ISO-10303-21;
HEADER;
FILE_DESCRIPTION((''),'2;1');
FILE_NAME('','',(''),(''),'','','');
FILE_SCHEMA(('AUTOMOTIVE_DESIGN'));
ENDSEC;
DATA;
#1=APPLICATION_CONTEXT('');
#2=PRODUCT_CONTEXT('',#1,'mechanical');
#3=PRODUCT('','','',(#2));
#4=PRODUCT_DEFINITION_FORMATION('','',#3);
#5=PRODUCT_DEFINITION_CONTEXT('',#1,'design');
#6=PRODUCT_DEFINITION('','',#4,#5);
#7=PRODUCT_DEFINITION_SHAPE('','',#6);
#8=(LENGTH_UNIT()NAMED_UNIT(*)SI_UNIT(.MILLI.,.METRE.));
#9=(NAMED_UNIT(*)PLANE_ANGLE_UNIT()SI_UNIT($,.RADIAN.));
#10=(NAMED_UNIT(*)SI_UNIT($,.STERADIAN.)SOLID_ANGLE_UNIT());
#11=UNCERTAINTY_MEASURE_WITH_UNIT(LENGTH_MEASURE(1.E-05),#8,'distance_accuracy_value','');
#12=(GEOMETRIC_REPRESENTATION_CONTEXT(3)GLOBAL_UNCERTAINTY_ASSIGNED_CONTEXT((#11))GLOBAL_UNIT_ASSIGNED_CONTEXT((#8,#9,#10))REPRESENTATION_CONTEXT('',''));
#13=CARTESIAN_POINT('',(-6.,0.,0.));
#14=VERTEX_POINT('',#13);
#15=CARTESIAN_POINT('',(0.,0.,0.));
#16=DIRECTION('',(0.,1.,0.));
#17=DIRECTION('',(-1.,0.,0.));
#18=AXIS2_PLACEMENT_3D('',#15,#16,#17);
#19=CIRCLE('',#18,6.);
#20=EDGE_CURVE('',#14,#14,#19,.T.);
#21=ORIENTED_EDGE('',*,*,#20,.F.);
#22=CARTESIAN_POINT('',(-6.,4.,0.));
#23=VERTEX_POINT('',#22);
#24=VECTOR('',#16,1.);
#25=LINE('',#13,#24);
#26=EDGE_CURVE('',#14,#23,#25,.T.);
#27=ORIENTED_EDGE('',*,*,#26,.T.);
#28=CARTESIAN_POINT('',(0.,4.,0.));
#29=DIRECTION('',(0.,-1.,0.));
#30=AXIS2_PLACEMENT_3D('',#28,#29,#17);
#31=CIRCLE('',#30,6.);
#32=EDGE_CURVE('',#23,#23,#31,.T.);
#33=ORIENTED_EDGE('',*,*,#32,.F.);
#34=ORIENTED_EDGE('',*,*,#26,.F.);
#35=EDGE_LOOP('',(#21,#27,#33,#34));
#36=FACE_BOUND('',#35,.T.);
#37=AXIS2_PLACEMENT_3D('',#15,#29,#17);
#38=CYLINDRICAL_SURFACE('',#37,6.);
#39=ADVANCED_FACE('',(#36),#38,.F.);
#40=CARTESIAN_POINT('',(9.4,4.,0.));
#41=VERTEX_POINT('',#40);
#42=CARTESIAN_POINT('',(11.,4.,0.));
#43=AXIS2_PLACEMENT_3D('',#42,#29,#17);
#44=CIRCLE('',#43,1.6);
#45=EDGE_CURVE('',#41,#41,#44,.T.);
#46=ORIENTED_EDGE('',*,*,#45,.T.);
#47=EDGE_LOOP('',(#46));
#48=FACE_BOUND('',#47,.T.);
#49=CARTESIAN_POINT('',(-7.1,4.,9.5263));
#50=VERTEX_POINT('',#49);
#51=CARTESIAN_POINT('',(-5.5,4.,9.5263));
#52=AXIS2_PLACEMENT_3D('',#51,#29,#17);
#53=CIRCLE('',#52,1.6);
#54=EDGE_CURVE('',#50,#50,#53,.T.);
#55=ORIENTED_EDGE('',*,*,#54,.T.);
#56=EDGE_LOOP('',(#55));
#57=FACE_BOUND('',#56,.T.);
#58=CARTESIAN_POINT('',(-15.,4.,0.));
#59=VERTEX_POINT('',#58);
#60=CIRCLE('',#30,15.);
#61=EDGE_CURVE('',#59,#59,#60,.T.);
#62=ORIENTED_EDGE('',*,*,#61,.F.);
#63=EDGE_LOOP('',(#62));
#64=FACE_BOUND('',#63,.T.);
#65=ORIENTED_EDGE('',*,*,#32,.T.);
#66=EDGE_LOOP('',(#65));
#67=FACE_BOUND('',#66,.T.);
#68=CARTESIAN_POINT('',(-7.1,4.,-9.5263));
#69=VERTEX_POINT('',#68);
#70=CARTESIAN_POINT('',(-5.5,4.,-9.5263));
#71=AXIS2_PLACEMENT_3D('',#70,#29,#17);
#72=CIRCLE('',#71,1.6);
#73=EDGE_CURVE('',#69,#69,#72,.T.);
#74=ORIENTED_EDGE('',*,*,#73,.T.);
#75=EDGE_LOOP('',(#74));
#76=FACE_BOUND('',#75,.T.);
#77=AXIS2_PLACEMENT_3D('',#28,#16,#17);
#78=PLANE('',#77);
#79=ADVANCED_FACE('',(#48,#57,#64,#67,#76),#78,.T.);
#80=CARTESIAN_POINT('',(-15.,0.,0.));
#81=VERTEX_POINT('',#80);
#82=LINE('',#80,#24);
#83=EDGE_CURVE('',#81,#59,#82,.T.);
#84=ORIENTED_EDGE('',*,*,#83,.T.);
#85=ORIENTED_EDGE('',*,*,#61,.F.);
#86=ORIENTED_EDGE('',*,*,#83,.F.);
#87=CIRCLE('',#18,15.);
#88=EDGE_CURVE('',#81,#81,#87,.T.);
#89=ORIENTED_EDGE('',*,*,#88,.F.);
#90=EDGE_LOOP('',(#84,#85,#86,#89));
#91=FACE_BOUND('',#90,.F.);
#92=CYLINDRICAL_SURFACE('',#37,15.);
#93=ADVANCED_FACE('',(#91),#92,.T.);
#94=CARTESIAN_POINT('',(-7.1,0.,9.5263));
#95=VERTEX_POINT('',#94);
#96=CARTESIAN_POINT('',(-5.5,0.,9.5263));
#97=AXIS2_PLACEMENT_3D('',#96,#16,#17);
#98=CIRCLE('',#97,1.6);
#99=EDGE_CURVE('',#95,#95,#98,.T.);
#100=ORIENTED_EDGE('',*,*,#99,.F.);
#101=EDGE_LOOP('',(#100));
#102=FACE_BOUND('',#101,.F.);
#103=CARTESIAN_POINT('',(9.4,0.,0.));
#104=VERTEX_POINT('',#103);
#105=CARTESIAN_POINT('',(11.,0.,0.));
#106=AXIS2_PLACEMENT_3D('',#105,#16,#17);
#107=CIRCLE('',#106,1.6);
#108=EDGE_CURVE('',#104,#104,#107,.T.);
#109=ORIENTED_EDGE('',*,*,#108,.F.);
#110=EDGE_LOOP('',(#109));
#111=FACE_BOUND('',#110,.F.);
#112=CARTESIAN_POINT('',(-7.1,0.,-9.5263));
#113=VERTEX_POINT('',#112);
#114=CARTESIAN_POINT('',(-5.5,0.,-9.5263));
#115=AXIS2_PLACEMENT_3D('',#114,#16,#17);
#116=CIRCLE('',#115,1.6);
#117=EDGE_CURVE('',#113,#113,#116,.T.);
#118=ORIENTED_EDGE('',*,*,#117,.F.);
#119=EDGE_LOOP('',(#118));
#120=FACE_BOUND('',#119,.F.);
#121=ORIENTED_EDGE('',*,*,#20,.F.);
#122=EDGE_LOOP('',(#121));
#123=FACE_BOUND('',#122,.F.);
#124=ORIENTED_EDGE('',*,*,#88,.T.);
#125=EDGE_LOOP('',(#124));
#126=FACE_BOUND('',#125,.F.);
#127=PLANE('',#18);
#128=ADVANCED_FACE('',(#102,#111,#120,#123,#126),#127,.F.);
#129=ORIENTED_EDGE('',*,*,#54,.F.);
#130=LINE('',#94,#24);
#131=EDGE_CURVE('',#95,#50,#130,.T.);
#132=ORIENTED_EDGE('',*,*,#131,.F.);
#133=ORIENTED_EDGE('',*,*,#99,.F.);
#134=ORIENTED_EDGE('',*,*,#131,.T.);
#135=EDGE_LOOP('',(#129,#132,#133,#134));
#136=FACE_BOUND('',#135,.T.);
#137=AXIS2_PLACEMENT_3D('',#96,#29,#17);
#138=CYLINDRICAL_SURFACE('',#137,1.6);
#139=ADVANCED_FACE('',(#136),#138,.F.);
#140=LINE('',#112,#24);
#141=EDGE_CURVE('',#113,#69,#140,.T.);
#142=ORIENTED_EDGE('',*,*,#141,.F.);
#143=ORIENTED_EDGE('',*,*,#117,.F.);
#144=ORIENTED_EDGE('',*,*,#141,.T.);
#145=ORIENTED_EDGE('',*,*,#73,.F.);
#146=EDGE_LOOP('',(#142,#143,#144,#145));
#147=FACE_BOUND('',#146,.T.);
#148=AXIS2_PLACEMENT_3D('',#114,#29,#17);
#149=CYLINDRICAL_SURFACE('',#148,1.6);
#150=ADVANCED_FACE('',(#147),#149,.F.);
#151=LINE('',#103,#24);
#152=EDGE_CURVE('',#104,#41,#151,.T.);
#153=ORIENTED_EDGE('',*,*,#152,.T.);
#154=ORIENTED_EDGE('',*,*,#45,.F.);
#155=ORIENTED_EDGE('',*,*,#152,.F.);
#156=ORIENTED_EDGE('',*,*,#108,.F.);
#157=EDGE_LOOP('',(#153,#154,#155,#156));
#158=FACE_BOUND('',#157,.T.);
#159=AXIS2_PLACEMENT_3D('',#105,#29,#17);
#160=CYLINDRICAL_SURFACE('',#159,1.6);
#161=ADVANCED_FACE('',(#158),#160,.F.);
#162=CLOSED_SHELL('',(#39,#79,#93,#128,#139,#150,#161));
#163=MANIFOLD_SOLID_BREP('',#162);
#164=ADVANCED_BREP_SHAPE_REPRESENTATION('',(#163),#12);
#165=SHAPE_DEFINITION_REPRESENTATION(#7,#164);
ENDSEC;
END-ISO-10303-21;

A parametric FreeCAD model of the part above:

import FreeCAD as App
import Part
import Sketcher
from FreeCAD import Vector
Q = App.Units.Quantity

doc = App.newDocument("Part")
body = doc.addObject("PartDesign::Body", "Body")

sketch1 = body.newObject("Sketcher::SketchObject", "Sketch")
sketch1.AttachmentSupport = (doc.getObject("XZ_Plane"), [""])
sketch1.MapMode = "FlatFace"
sketch1.addGeometry(Part.Circle(Vector(0, 0, 0), Vector(0, 0, 1), 15), False)
sketch1.addGeometry(Part.Circle(Vector(-5.5, -9.5, 0), Vector(0, 0, 1), 1.6), False)
sketch1.addGeometry(Part.Circle(Vector(-5.5, 9.5, 0), Vector(0, 0, 1), 1.6), False)
sketch1.addGeometry(Part.Circle(Vector(11, 0, 0), Vector(0, 0, 1), 1.6), False)
sketch1.addGeometry(Part.Circle(Vector(0, 0, 0), Vector(0, 0, 1), 6), False)
sketch1.addConstraint(Sketcher.Constraint("Coincident", 0, 3, -1, 1))
sketch1.addConstraint(Sketcher.Constraint("Coincident", 4, 3, -1, 1))
sketch1.addConstraint(Sketcher.Constraint("Equal", 1, 2))
sketch1.addConstraint(Sketcher.Constraint("Equal", 2, 3))
sketch1.addConstraint(Sketcher.Constraint("Symmetric", 1, 3, 2, 3, -1))
sketch1.addConstraint(Sketcher.Constraint("PointOnObject", 3, 3, -1))
sketch1.addConstraint(Sketcher.Constraint("Diameter", 0, Q("30 mm")))
sketch1.addConstraint(Sketcher.Constraint("Diameter", 4, Q("12 mm")))
sketch1.addConstraint(Sketcher.Constraint("Diameter", 1, Q("3.2 mm")))
sketch1.addConstraint(Sketcher.Constraint("DistanceX", -1, 1, 3, 3, Q("11 mm")))
sketch1.addConstraint(Sketcher.Constraint("DistanceX", 1, 3, -1, 1, Q("5.5 mm")))
sketch1.addConstraint(Sketcher.Constraint("DistanceY", 1, 3, -1, 1, Q("9.5263 mm")))
pad1 = body.newObject("PartDesign::Pad", "Pad")
pad1.Profile = sketch1
pad1.Length = 4
pad1.Reversed = True

doc.recompute()
